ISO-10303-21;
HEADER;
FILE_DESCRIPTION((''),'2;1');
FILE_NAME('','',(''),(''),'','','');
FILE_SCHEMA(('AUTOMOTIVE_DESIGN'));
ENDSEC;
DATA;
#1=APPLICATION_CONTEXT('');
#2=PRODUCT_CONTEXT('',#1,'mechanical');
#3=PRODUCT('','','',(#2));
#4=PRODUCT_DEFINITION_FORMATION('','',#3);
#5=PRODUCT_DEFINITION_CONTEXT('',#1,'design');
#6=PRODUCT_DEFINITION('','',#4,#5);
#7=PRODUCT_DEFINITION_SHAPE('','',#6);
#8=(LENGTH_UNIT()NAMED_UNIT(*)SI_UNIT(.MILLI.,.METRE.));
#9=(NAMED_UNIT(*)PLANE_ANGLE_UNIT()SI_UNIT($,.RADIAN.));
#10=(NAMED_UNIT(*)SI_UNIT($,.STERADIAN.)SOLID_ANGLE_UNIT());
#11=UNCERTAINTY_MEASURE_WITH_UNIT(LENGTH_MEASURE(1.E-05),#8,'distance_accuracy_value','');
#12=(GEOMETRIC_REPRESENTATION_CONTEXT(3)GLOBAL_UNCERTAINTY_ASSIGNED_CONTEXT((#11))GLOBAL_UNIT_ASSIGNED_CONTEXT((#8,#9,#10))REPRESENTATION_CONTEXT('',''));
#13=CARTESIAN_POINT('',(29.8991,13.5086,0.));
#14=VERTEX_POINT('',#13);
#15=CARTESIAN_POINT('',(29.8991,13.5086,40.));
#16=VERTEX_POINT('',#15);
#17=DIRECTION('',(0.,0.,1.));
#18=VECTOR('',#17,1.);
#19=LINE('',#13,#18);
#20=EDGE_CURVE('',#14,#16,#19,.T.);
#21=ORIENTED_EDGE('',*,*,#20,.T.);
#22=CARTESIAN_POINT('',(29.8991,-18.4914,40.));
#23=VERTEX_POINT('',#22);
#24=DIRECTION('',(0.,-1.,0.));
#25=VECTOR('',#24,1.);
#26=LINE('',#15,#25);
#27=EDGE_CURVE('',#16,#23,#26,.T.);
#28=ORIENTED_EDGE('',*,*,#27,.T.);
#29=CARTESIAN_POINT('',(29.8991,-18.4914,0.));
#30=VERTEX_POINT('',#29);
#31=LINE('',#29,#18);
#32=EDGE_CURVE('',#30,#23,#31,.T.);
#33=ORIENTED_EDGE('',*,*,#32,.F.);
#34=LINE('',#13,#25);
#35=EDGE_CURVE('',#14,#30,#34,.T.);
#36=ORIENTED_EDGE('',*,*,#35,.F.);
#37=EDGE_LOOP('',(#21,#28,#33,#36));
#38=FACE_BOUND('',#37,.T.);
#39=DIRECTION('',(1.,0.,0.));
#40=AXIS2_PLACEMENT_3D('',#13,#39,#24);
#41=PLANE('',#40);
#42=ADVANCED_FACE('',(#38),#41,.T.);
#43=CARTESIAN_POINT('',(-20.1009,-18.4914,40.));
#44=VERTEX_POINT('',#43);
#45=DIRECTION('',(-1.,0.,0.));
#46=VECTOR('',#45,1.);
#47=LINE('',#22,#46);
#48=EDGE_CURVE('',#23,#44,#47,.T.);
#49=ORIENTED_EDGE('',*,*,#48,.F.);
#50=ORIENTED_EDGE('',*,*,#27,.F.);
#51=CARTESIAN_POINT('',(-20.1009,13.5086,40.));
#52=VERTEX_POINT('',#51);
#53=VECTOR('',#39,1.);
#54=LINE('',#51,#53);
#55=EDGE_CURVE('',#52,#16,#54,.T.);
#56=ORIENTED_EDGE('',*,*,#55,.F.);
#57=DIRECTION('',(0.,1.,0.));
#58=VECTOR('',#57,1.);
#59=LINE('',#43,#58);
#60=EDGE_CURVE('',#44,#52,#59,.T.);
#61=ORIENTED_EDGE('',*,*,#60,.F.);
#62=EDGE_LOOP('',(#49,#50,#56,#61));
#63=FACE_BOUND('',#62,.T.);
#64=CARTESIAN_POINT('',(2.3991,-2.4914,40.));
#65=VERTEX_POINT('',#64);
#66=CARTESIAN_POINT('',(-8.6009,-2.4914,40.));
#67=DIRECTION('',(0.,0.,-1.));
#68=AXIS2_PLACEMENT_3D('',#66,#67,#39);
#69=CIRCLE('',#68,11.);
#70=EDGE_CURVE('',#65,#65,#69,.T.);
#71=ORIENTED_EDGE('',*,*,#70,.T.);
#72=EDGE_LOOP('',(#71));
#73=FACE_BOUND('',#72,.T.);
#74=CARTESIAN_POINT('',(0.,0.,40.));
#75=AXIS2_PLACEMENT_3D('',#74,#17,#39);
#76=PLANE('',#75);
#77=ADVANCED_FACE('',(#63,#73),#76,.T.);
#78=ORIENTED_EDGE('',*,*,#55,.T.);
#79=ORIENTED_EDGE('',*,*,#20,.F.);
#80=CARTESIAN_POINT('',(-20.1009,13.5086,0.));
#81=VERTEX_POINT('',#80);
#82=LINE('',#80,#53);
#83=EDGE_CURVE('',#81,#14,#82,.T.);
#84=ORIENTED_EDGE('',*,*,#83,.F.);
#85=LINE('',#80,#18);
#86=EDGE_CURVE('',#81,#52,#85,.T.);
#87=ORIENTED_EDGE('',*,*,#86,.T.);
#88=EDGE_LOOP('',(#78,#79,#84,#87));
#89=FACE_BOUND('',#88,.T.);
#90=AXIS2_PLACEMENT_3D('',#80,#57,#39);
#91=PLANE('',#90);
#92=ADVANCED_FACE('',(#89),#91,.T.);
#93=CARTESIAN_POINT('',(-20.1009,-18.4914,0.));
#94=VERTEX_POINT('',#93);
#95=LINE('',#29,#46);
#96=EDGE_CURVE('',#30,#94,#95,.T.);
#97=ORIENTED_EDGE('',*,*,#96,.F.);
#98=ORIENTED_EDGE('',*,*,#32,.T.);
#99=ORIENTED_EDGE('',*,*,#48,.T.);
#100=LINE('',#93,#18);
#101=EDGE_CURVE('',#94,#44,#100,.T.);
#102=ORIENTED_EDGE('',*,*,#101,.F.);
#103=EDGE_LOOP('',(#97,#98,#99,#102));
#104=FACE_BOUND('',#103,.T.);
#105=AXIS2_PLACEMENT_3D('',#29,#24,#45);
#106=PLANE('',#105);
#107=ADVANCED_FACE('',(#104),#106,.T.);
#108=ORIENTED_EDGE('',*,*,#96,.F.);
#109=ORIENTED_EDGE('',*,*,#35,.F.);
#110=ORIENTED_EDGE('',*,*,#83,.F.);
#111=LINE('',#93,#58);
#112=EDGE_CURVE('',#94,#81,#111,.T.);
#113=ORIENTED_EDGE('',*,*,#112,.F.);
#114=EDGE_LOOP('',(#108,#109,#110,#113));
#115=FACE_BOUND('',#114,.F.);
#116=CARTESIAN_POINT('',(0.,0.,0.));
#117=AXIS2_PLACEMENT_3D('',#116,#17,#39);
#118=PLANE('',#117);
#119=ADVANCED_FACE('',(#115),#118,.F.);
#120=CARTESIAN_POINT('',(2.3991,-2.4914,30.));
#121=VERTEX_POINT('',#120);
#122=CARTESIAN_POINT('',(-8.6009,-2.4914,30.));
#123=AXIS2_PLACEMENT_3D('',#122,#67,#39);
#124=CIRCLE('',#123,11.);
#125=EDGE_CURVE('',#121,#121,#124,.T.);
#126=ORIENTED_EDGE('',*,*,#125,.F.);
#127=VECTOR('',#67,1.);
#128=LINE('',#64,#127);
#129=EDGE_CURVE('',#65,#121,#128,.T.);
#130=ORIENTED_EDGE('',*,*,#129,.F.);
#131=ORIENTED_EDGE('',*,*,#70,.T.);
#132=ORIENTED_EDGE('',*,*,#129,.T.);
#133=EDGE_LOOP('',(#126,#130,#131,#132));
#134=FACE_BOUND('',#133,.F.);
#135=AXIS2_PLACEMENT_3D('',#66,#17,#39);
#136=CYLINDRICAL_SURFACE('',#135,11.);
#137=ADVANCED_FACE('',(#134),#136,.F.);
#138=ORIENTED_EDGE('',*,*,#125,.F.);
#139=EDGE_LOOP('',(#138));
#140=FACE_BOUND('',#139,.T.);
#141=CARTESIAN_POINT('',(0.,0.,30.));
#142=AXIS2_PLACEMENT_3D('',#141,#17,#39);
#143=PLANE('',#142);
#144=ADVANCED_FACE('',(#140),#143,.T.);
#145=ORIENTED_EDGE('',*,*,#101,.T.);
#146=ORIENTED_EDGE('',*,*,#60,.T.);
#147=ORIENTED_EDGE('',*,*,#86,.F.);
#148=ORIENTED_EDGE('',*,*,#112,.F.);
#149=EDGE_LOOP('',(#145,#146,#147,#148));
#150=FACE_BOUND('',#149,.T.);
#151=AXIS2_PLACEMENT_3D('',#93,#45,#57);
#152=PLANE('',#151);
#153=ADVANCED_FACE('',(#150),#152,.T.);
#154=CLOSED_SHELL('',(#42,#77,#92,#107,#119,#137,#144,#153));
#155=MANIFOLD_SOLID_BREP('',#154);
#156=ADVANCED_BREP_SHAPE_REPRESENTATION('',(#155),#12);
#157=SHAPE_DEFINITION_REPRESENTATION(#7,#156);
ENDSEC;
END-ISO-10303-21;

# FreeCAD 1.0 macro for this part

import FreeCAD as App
import Part
import Sketcher

V = App.Vector
Q = App.Units.Quantity


def add_polygon(sketch, points):
    """Adds a closed chain of lines whose ends are joined by coincident constraints."""
    first, n = sketch.GeometryCount, len(points)
    for a, b in zip(points, points[1:] + points[:1]):
        sketch.addGeometry(Part.LineSegment(App.Vector(*a, 0), App.Vector(*b, 0)), False)
    for i in range(n):
        sketch.addConstraint(Sketcher.Constraint("Coincident", first + i, 2, first + (i + 1) % n, 1))

doc = App.newDocument("Part")
body = doc.addObject("PartDesign::Body", "Body")

# Sketch on XY plane
sketch1 = body.newObject("Sketcher::SketchObject", "Sketch")
sketch1.AttachmentSupport = (doc.getObject("XY_Plane"), [""])
sketch1.MapMode = "FlatFace"
add_polygon(sketch1, [(30, 14), (-20, 14), (-20, -18), (30, -18)])  # lines 0-3
sketch1.addConstraint([
    Sketcher.Constraint("Horizontal", 0),
    Sketcher.Constraint("Vertical", 1),
    Sketcher.Constraint("Horizontal", 2),
    Sketcher.Constraint("Vertical", 3),
    Sketcher.Constraint("DistanceX", 0, 2, 0, 1, Q("50 mm")),
    Sketcher.Constraint("DistanceY", 1, 2, 1, 1, Q("32 mm")),
    Sketcher.Constraint("DistanceX", 0, 2, -1, 1, Q("20.101 mm")),
    Sketcher.Constraint("DistanceY", -1, 1, 0, 2, Q("13.5086 mm")),
])
pad1 = body.newObject("PartDesign::Pad", "Pad")
pad1.Profile = sketch1
pad1.Length = 40

# Sketch on XY plane
sketch2 = body.newObject("Sketcher::SketchObject", "Sketch001")
sketch2.AttachmentSupport = (doc.getObject("XY_Plane"), [""])
sketch2.MapMode = "FlatFace"
sketch2.AttachmentOffset = App.Placement(V(0, 0, 40), App.Rotation())
sketch2.addGeometry(Part.Circle(V(-9, -2, 0), V(0, 0, 1), 8), False)
sketch2.addConstraint([
    Sketcher.Constraint("Diameter", 0, Q("16 mm")),
    Sketcher.Constraint("DistanceX", 0, 3, -1, 1, Q("8.601 mm")),
    Sketcher.Constraint("DistanceY", 0, 3, -1, 1, Q("2.4914 mm")),
])
pocket1 = body.newObject("PartDesign::Pocket", "Pocket")
pocket1.Profile = sketch2
pocket1.Length = 10

# Sketch on XY plane
sketch3 = body.newObject("Sketcher::SketchObject", "Sketch002")
sketch3.AttachmentSupport = (doc.getObject("XY_Plane"), [""])
sketch3.MapMode = "FlatFace"
sketch3.AttachmentOffset = App.Placement(V(0, 0, 40), App.Rotation())
sketch3.addGeometry(Part.Circle(V(-9, -2, 0), V(0, 0, 1), 8), False)
sketch3.addConstraint([
    Sketcher.Constraint("Diameter", 0, Q("16 mm")),
    Sketcher.Constraint("DistanceX", 0, 3, -1, 1, Q("8.601 mm")),
    Sketcher.Constraint("DistanceY", 0, 3, -1, 1, Q("2.4914 mm")),
])
pad2 = body.newObject("PartDesign::Pad", "Pad001")
pad2.Profile = sketch3
pad2.Length = 10
pad2.Reversed = True

# Sketch on XY plane
sketch4 = body.newObject("Sketcher::SketchObject", "Sketch003")
sketch4.AttachmentSupport = (doc.getObject("XY_Plane"), [""])
sketch4.MapMode = "FlatFace"
sketch4.AttachmentOffset = App.Placement(V(0, 0, 40), App.Rotation())
sketch4.addGeometry(Part.Circle(V(-9, -2, 0), V(0, 0, 1), 11), False)
sketch4.addConstraint([
    Sketcher.Constraint("Diameter", 0, Q("22 mm")),
    Sketcher.Constraint("DistanceX", 0, 3, -1, 1, Q("8.601 mm")),
    Sketcher.Constraint("DistanceY", 0, 3, -1, 1, Q("2.4914 mm")),
])
pocket2 = body.newObject("PartDesign::Pocket", "Pocket001")
pocket2.Profile = sketch4
pocket2.Length = 10

doc.recompute()
